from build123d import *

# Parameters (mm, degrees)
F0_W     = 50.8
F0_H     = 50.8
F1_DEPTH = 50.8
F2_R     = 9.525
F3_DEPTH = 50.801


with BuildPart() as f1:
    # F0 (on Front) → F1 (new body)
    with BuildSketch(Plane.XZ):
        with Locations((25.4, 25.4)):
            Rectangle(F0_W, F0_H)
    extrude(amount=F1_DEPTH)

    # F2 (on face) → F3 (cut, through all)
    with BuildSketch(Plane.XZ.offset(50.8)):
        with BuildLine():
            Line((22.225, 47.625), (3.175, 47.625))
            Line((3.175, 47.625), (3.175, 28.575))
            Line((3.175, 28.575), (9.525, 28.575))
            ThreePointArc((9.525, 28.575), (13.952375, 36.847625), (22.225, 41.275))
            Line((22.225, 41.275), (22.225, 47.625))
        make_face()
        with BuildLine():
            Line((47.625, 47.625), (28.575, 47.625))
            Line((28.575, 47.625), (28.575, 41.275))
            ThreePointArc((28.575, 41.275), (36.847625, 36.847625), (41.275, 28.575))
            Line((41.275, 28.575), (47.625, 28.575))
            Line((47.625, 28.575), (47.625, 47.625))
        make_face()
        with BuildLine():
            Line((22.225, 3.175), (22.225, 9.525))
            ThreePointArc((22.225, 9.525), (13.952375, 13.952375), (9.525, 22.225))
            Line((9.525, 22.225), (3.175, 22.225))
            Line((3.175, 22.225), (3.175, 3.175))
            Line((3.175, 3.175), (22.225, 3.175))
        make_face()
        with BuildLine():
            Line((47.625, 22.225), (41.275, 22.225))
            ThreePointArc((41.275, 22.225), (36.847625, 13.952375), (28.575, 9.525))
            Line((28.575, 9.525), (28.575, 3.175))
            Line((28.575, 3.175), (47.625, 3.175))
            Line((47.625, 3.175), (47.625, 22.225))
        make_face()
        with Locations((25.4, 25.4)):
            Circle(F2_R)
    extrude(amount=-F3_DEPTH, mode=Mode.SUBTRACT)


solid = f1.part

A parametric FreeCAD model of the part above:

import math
import FreeCAD as App
import Part
import Sketcher

V = App.Vector
Q = App.Units.Quantity

doc = App.newDocument("Part")
body = doc.addObject("PartDesign::Body", "Body")

# Sketch on XZ plane
sketch1 = doc.addObject("Sketcher::SketchObject", "Sketch")
body.addObject(sketch1)
sketch1.AttachmentSupport = (doc.XZ_Plane, [""])
sketch1.MapMode = "FlatFace"
sketch1.addGeometry([
    Part.LineSegment(V(0, 51, 0), V(0, 0, 0)),
    Part.LineSegment(V(0, 0, 0), V(51, 0, 0)),
    Part.LineSegment(V(51, 0, 0), V(51, 51, 0)),
    Part.LineSegment(V(51, 51, 0), V(0, 51, 0)),
], False)
sketch1.addConstraint([
    Sketcher.Constraint("Coincident", 0, 2, 1, 1),
    Sketcher.Constraint("Coincident", 1, 2, 2, 1),
    Sketcher.Constraint("Coincident", 2, 2, 3, 1),
    Sketcher.Constraint("Coincident", 3, 2, 0, 1),
    Sketcher.Constraint("Vertical", 0),
    Sketcher.Constraint("Horizontal", 1),
    Sketcher.Constraint("Vertical", 2),
    Sketcher.Constraint("Horizontal", 3),
    Sketcher.Constraint("Coincident", 0, 2, -1, 1),
    Sketcher.Constraint("Equal", 3, 0),
    Sketcher.Constraint("DistanceX", 1, 1, 1, 2, Q("2 in")),
])
pad1 = doc.addObject("PartDesign::Pad", "Pad")
body.addObject(pad1)
pad1.Profile = sketch1
pad1.Length = Q("2 in")

# Sketch on XZ plane
sketch2 = doc.addObject("Sketcher::SketchObject", "Sketch001")
body.addObject(sketch2)
sketch2.AttachmentSupport = (doc.XZ_Plane, [""])
sketch2.MapMode = "FlatFace"
sketch2.AttachmentOffset = App.Placement(V(0, 0, 2 * 25.4), App.Rotation())
sketch2.addGeometry([
    Part.LineSegment(V(22, 48, 0), V(3, 48, 0)),  # 0
    Part.LineSegment(V(3, 48, 0), V(3, 29, 0)),  # 1
    Part.LineSegment(V(3, 29, 0), V(10, 29, 0)),  # 2
    Part.ArcOfCircle(Part.Circle(V(25, 25, 0), V(0, 0, 1), 16), math.radians(101), math.radians(169)),  # 3
    Part.LineSegment(V(22, 41, 0), V(22, 48, 0)),  # 4
    Part.LineSegment(V(48, 48, 0), V(29, 48, 0)),  # 5
    Part.LineSegment(V(29, 48, 0), V(29, 41, 0)),  # 6
    Part.ArcOfCircle(Part.Circle(V(25, 25, 0), V(0, 0, 1), 16), math.radians(11), math.radians(79)),  # 7
    Part.LineSegment(V(41, 29, 0), V(48, 29, 0)),  # 8
    Part.LineSegment(V(48, 29, 0), V(48, 48, 0)),  # 9
    Part.LineSegment(V(22, 3, 0), V(22, 10, 0)),  # 10
    Part.ArcOfCircle(Part.Circle(V(25, 25, 0), V(0, 0, 1), 16), math.radians(-169), math.radians(-101)),  # 11
    Part.LineSegment(V(10, 22, 0), V(3, 22, 0)),  # 12
    Part.LineSegment(V(3, 22, 0), V(3, 3, 0)),  # 13
    Part.LineSegment(V(3, 3, 0), V(22, 3, 0)),  # 14
    Part.LineSegment(V(48, 22, 0), V(41, 22, 0)),  # 15
    Part.ArcOfCircle(Part.Circle(V(25, 25, 0), V(0, 0, 1), 16), math.radians(-79), math.radians(-11)),  # 16
    Part.LineSegment(V(29, 10, 0), V(29, 3, 0)),  # 17
    Part.LineSegment(V(29, 3, 0), V(48, 3, 0)),  # 18
    Part.LineSegment(V(48, 3, 0), V(48, 22, 0)),  # 19
    Part.Circle(V(25, 25, 0), V(0, 0, 1), 10),  # 20
], False)
sketch2.addConstraint([
    Sketcher.Constraint("Coincident", 0, 2, 1, 1),
    Sketcher.Constraint("Coincident", 1, 2, 2, 1),
    Sketcher.Constraint("Coincident", 2, 2, 3, 2),
    Sketcher.Constraint("Coincident", 3, 1, 4, 1),
    Sketcher.Constraint("Coincident", 4, 2, 0, 1),
    Sketcher.Constraint("Coincident", 5, 2, 6, 1),
    Sketcher.Constraint("Coincident", 6, 2, 7, 2),
    Sketcher.Constraint("Coincident", 7, 1, 8, 1),
    Sketcher.Constraint("Coincident", 8, 2, 9, 1),
    Sketcher.Constraint("Coincident", 9, 2, 5, 1),
    Sketcher.Constraint("Coincident", 10, 2, 11, 2),
    Sketcher.Constraint("Coincident", 11, 1, 12, 1),
    Sketcher.Constraint("Coincident", 12, 2, 13, 1),
    Sketcher.Constraint("Coincident", 13, 2, 14, 1),
    Sketcher.Constraint("Coincident", 14, 2, 10, 1),
    Sketcher.Constraint("Coincident", 15, 2, 16, 2),
    Sketcher.Constraint("Coincident", 16, 1, 17, 1),
    Sketcher.Constraint("Coincident", 17, 2, 18, 1),
    Sketcher.Constraint("Coincident", 18, 2, 19, 1),
    Sketcher.Constraint("Coincident", 19, 2, 15, 1),
    Sketcher.Constraint("Horizontal", 0),
    Sketcher.Constraint("Vertical", 1),
    Sketcher.Constraint("Horizontal", 2),
    Sketcher.Constraint("Vertical", 4),
    Sketcher.Constraint("Horizontal", 5),
    Sketcher.Constraint("Vertical", 6),
    Sketcher.Constraint("Horizontal", 8),
    Sketcher.Constraint("Vertical", 9),
    Sketcher.Constraint("Vertical", 10),
    Sketcher.Constraint("Horizontal", 12),
    Sketcher.Constraint("Vertical", 13),
    Sketcher.Constraint("Horizontal", 14),
    Sketcher.Constraint("Horizontal", 15),
    Sketcher.Constraint("Vertical", 17),
    Sketcher.Constraint("Horizontal", 18),
    Sketcher.Constraint("Vertical", 19),
    Sketcher.Constraint("Coincident", 7, 3, 3, 3),
    Sketcher.Constraint("Coincident", 11, 3, 3, 3),
    Sketcher.Constraint("Coincident", 16, 3, 3, 3),
    Sketcher.Constraint("Coincident", 20, 3, 3, 3),
    Sketcher.Constraint("Equal", 3, 7),
    Sketcher.Constraint("Equal", 7, 11),
    Sketcher.Constraint("Equal", 11, 16),
    Sketcher.Constraint("Horizontal", 4, 2, 5, 2),
    Sketcher.Constraint("Horizontal", 3, 1, 6, 2),
    Sketcher.Constraint("Horizontal", 2, 2, 7, 1),
    Sketcher.Constraint("Horizontal", 12, 2, 15, 2),
    Sketcher.Constraint("Horizontal", 10, 2, 16, 1),
    Sketcher.Constraint("Horizontal", 14, 2, 17, 2),
    Sketcher.Constraint("Vertical", 4, 2, 10, 2),
    Sketcher.Constraint("Vertical", 2, 2, 11, 1),
    Sketcher.Constraint("Vertical", 1, 2, 12, 2),
    Sketcher.Constraint("Vertical", 9, 2, 18, 2),
    Sketcher.Constraint("Equal", 0, 5),
    Sketcher.Constraint("Equal", 18, 1),
    Sketcher.Constraint("Equal", 15, 4),
    Sketcher.Constraint("Equal", 6, 10),
    Sketcher.Constraint("Diameter", 20, Q("0.75 in")),
    Sketcher.Constraint("DistanceX", -1, 1, 3, 3, Q("1.0000001 in")),
    Sketcher.Constraint("DistanceY", -1, 1, 3, 3, Q("0.9999999 in")),
    Sketcher.Constraint("DistanceX", 4, 2, 9, 2, Q("1 in")),
    Sketcher.Constraint("DistanceX", 0, 2, 0, 1, Q("0.75 in")),
    Sketcher.Constraint("DistanceX", 2, 1, 2, 2, Q("0.25 in")),
])
pocket1 = doc.addObject("PartDesign::Pocket", "Pocket")
body.addObject(pocket1)
pocket1.Profile = sketch2
pocket1.Type = "ThroughAll"

doc.recompute()
